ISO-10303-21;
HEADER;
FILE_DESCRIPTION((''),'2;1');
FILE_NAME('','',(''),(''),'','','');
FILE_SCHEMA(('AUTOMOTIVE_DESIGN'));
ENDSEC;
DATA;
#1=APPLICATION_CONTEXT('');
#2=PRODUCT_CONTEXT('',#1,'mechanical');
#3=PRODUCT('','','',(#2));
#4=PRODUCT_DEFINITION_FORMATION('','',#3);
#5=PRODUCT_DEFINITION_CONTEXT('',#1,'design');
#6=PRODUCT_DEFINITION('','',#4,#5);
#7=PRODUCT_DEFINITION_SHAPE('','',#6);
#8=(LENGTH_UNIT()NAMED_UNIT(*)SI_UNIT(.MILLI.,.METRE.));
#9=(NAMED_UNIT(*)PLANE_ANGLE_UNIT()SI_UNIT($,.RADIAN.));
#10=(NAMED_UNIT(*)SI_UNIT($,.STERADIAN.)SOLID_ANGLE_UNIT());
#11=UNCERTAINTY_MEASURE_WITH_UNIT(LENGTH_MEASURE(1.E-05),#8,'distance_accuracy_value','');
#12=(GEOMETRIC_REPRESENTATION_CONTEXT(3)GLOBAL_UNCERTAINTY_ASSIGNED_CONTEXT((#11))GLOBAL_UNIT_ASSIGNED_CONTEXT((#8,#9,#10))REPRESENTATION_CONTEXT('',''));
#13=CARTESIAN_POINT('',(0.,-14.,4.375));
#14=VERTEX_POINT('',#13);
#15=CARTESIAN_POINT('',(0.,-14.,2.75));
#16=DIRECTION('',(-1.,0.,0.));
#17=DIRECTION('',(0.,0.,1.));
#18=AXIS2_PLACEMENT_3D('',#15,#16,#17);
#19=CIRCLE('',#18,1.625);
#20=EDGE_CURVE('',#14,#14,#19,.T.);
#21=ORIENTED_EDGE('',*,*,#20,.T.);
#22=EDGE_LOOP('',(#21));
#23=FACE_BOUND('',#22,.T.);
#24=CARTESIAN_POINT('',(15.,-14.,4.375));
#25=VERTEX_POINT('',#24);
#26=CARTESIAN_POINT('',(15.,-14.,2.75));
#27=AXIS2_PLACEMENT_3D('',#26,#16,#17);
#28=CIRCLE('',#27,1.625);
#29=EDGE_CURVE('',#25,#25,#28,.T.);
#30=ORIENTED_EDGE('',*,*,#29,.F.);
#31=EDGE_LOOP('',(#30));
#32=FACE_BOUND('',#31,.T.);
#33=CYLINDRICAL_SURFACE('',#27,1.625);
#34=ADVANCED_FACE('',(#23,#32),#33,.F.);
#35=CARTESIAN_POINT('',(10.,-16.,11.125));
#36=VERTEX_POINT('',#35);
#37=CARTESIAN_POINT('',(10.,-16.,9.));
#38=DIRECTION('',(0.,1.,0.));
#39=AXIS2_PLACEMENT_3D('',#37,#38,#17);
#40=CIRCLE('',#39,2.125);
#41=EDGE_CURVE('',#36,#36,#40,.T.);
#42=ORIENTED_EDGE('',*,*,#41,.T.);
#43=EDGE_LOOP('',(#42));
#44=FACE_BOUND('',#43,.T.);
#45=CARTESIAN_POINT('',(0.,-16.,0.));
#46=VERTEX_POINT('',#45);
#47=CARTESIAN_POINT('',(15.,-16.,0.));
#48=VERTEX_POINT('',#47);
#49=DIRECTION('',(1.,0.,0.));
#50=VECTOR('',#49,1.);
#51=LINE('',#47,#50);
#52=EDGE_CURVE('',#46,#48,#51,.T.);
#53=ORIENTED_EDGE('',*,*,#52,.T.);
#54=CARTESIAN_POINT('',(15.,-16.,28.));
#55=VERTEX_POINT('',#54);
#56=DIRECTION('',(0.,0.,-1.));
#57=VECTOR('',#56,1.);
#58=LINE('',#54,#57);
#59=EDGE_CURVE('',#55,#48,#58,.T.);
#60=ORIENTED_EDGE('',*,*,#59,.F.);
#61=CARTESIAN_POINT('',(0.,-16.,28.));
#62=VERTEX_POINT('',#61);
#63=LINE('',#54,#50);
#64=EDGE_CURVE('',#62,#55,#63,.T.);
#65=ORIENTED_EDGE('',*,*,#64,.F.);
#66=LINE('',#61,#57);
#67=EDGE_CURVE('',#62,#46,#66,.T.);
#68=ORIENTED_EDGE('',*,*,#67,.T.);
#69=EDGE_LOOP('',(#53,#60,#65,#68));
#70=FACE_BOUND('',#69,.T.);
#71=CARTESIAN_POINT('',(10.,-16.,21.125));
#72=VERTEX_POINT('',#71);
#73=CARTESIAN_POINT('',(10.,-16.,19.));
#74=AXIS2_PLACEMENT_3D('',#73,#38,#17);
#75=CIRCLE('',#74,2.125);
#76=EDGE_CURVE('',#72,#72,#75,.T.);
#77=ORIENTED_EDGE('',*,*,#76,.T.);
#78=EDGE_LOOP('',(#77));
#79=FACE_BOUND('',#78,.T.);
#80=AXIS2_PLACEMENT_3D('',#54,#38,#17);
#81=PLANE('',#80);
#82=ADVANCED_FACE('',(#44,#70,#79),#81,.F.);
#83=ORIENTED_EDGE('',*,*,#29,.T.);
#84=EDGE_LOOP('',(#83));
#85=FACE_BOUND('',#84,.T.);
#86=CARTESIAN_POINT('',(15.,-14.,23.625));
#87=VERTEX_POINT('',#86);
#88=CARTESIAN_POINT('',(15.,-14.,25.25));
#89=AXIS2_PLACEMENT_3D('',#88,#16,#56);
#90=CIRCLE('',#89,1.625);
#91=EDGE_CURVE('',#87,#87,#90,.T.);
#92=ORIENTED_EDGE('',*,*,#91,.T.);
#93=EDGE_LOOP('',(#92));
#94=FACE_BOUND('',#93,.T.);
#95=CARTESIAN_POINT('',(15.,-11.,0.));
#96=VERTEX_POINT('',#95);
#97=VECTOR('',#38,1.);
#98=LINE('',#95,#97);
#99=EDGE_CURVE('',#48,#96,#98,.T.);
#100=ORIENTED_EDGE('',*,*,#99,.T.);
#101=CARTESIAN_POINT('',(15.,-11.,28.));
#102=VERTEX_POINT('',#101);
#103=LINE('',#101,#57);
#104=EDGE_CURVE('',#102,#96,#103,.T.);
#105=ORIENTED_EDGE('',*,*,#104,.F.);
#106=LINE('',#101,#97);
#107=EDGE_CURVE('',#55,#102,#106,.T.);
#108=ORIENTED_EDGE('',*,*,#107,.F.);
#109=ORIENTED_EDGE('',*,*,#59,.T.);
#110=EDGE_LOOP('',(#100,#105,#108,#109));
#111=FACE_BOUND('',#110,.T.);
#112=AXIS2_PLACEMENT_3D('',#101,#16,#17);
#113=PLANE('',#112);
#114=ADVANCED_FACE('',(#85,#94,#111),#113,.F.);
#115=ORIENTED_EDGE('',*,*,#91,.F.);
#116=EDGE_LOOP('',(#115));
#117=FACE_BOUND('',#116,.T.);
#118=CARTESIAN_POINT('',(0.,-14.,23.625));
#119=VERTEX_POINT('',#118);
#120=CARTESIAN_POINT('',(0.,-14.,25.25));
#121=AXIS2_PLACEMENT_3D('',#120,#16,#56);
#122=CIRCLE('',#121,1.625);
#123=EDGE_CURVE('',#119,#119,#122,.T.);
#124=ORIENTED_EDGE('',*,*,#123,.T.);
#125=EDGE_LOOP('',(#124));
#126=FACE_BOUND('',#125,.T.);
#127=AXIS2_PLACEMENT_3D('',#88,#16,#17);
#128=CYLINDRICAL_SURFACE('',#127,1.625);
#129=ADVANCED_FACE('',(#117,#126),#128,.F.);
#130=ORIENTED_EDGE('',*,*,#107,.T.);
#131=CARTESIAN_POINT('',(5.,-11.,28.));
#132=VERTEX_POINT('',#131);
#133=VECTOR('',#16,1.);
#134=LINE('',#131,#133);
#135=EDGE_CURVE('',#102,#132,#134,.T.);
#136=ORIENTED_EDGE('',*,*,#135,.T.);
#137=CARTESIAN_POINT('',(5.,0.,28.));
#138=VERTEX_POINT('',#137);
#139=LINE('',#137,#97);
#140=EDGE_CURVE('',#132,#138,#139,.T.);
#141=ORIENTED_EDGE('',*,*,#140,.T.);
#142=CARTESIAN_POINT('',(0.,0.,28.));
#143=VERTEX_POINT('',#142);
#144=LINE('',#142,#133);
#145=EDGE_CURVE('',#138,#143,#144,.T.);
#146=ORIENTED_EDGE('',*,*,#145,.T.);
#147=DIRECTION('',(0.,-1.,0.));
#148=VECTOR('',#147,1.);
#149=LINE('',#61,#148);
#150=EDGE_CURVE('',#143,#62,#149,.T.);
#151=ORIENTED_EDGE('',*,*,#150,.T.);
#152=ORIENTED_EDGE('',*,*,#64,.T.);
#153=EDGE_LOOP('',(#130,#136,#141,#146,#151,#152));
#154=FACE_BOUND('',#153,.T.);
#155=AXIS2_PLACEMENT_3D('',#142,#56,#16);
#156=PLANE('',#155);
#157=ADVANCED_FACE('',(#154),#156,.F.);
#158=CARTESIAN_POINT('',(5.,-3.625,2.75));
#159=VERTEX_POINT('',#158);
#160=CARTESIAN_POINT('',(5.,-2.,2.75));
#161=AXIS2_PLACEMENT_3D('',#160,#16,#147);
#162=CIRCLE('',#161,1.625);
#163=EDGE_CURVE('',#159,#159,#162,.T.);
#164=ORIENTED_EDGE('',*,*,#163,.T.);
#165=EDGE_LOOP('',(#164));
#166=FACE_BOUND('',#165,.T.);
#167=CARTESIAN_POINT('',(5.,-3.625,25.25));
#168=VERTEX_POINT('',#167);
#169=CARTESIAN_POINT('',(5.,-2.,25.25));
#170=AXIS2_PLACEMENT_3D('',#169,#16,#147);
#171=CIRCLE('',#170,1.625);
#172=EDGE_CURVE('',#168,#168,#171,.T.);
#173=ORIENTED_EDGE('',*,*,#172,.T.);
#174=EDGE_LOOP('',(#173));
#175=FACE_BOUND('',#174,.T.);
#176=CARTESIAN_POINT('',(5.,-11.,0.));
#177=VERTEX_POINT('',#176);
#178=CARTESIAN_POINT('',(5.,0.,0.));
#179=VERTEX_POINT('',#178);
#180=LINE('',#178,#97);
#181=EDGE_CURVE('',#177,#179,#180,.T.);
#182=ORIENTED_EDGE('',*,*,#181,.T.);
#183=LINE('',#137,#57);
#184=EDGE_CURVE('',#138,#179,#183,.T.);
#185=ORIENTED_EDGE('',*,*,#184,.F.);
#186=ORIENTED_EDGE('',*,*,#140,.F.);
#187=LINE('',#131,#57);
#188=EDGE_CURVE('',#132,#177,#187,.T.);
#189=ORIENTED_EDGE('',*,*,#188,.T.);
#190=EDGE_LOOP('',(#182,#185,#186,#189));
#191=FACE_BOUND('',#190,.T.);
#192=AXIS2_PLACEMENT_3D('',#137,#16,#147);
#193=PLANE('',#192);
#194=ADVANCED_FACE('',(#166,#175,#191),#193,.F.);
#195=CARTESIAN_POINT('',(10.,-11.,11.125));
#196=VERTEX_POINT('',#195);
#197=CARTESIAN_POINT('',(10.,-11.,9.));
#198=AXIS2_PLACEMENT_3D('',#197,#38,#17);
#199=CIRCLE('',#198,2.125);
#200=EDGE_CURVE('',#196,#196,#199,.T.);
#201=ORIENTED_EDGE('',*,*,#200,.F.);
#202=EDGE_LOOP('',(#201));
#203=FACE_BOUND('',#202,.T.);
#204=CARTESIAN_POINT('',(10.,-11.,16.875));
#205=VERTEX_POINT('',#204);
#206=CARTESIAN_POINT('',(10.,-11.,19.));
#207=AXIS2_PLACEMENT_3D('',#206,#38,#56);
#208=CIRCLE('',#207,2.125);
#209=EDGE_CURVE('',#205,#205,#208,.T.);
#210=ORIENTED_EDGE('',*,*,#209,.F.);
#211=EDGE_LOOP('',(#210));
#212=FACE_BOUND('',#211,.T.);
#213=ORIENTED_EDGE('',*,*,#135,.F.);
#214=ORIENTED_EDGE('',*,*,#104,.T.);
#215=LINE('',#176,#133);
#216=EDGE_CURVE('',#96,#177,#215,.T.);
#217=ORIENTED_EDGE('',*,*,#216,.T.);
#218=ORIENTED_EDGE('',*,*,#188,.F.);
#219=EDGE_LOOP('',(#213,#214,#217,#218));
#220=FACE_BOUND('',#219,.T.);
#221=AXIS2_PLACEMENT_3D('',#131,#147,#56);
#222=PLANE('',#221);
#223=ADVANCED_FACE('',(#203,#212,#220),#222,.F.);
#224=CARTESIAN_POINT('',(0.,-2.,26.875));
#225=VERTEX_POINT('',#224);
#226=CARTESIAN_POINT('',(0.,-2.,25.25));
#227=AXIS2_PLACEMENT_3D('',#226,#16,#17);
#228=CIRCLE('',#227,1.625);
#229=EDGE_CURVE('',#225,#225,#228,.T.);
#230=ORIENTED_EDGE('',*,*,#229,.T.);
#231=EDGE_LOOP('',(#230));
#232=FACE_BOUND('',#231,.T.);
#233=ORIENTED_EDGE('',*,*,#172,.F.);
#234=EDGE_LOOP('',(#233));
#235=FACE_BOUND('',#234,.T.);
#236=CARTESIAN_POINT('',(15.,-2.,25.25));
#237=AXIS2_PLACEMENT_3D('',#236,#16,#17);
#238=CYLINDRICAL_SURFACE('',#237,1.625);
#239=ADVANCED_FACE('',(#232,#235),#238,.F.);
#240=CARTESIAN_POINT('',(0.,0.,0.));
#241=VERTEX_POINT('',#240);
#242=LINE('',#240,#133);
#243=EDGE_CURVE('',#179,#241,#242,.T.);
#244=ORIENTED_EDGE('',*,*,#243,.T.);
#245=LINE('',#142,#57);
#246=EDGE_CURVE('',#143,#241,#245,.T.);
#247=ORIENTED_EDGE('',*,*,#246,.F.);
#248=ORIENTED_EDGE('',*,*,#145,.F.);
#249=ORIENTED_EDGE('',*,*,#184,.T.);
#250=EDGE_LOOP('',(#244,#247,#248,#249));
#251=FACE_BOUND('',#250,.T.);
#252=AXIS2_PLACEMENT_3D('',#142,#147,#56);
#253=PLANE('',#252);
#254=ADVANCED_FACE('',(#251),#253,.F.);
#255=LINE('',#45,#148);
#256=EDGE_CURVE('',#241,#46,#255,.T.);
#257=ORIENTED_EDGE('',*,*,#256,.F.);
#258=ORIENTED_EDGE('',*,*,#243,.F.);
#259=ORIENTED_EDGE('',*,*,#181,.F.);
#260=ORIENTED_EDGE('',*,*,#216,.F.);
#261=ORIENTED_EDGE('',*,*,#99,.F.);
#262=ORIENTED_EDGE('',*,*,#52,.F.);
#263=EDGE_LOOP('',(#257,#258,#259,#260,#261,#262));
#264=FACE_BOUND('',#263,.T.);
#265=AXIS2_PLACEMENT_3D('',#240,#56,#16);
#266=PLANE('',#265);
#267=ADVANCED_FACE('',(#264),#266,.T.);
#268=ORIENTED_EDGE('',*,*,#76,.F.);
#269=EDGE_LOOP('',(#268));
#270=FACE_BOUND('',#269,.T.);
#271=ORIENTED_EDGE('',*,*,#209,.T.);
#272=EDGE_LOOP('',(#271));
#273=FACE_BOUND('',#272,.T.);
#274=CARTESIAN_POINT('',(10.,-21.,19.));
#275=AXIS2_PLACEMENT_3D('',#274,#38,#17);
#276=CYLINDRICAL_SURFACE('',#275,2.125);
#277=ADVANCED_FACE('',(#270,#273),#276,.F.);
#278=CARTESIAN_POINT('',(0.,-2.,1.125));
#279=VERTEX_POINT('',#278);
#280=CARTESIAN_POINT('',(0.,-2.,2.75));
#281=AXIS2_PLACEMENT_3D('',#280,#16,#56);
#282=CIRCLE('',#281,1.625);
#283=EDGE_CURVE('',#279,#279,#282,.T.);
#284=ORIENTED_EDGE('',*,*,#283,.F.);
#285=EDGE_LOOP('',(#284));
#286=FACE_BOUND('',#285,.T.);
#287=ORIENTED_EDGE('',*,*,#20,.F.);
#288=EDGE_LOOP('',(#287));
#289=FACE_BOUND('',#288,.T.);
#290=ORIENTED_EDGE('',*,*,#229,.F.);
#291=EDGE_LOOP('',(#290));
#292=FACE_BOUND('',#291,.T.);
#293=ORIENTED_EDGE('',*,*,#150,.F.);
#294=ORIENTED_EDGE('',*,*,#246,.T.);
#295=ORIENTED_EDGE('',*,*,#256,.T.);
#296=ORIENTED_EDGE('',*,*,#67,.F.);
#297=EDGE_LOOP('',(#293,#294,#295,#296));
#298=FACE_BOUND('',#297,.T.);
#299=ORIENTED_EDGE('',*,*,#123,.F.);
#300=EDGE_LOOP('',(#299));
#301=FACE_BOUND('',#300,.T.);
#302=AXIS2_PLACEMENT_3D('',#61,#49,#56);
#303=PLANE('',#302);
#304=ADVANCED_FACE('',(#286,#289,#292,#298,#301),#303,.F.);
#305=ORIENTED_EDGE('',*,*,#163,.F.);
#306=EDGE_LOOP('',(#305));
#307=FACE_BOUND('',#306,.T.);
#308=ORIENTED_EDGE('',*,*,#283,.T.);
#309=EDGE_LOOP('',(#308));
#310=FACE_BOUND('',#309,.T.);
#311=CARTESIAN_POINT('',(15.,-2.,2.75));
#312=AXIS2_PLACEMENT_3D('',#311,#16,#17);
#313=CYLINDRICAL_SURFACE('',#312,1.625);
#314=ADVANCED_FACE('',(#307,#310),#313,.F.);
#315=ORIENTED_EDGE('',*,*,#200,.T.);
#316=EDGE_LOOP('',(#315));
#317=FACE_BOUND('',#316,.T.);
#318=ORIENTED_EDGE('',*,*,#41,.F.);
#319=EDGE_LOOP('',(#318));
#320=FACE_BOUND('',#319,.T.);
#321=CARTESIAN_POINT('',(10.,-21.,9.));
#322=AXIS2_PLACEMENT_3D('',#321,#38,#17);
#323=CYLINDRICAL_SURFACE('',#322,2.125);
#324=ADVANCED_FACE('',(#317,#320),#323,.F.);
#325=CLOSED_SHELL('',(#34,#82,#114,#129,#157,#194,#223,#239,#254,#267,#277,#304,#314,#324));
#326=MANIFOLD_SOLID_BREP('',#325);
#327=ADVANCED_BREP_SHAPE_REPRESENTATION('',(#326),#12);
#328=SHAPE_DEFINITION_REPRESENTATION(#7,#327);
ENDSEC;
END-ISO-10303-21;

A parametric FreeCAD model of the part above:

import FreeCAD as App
import Part
import Sketcher

doc = App.newDocument("Part")
params = doc.addObject("Spreadsheet::Sheet", "Params")
for row, (alias, value) in enumerate([
    ("sketch1_width", "5 mm"),
    ("sketch1_width2", "15 mm"),
    ("sketch1_height", "16 mm"),
    ("pad1_length", "28 mm"),
    ("sketch2_diameter", "3.25 mm"),
    ("sketch3_diameter", "4.25 mm"),
    ("pocket2_length", "10 mm"),
], start=1):
    params.set(f"A{row}", alias)
    params.set(f"B{row}", "=" + value)
    params.setAlias(f"B{row}", alias)

body = doc.addObject("PartDesign::Body", "Body")

# Sketch on XY plane
sketch1 = body.newObject("Sketcher::SketchObject", "Sketch")
sketch1.AttachmentSupport = (doc.getObject("XY_Plane"), [""])
sketch1.MapMode = "FlatFace"
sketch1.addGeometry(Part.LineSegment(App.Vector(5, 0, 0), App.Vector(0, 0, 0)), False)
sketch1.addGeometry(Part.LineSegment(App.Vector(0, 0, 0), App.Vector(0, -16, 0)), False)
sketch1.addGeometry(Part.LineSegment(App.Vector(0, -16, 0), App.Vector(15, -16, 0)), False)
sketch1.addGeometry(Part.LineSegment(App.Vector(15, -16, 0), App.Vector(15, -11, 0)), False)
sketch1.addGeometry(Part.LineSegment(App.Vector(15, -11, 0), App.Vector(5, -11, 0)), False)
sketch1.addGeometry(Part.LineSegment(App.Vector(5, -11, 0), App.Vector(5, 0, 0)), False)
sketch1.addConstraint(Sketcher.Constraint("Coincident", 0, 2, 1, 1))
sketch1.addConstraint(Sketcher.Constraint("Coincident", 1, 2, 2, 1))
sketch1.addConstraint(Sketcher.Constraint("Coincident", 2, 2, 3, 1))
sketch1.addConstraint(Sketcher.Constraint("Coincident", 3, 2, 4, 1))
sketch1.addConstraint(Sketcher.Constraint("Coincident", 4, 2, 5, 1))
sketch1.addConstraint(Sketcher.Constraint("Coincident", 5, 2, 0, 1))
sketch1.addConstraint(Sketcher.Constraint("Horizontal", 0))
sketch1.addConstraint(Sketcher.Constraint("Vertical", 1))
sketch1.addConstraint(Sketcher.Constraint("Horizontal", 2))
sketch1.addConstraint(Sketcher.Constraint("Vertical", 3))
sketch1.addConstraint(Sketcher.Constraint("Horizontal", 4))
sketch1.addConstraint(Sketcher.Constraint("Vertical", 5))
sketch1.addConstraint(Sketcher.Constraint("Coincident", 0, 2, -1, 1))
sketch1.addConstraint(Sketcher.Constraint("Equal", 0, 3))
sketch1.addConstraint(Sketcher.Constraint("DistanceX", 0, 2, 0, 1, 5.0))
sketch1.addConstraint(Sketcher.Constraint("DistanceX", 2, 1, 2, 2, 15.0))
sketch1.addConstraint(Sketcher.Constraint("DistanceY", 1, 2, 1, 1, 16.0))
sketch1.setExpression("Constraints[14]", "Params.sketch1_width")
sketch1.setExpression("Constraints[15]", "Params.sketch1_width2")
sketch1.setExpression("Constraints[16]", "Params.sketch1_height")
pad1 = body.newObject("PartDesign::Pad", "Pad")
pad1.Profile = sketch1
pad1.setExpression("Length", "Params.pad1_length")

# Sketch on YZ plane
sketch2 = body.newObject("Sketcher::SketchObject", "Sketch001")
sketch2.AttachmentSupport = (doc.getObject("YZ_Plane"), [""])
sketch2.MapMode = "FlatFace"
sketch2.addGeometry(Part.Circle(App.Vector(-2, 25.25, 0), App.Vector(0, 0, 1), 1.625), False)
sketch2.addGeometry(Part.Circle(App.Vector(-14, 2.75, 0), App.Vector(0, 0, 1), 1.625), False)
sketch2.addGeometry(Part.Circle(App.Vector(-14, 25.25, 0), App.Vector(0, 0, 1), 1.625), False)
sketch2.addGeometry(Part.Circle(App.Vector(-2, 2.75, 0), App.Vector(0, 0, 1), 1.625), False)
sketch2.addConstraint(Sketcher.Constraint("Equal", 0, 1))
sketch2.addConstraint(Sketcher.Constraint("Equal", 1, 2))
sketch2.addConstraint(Sketcher.Constraint("Equal", 2, 3))
sketch2.addConstraint(Sketcher.Constraint("Horizontal", 0, 3, 2, 3))
sketch2.addConstraint(Sketcher.Constraint("Horizontal", 1, 3, 3, 3))
sketch2.addConstraint(Sketcher.Constraint("Vertical", 1, 3, 2, 3))
sketch2.addConstraint(Sketcher.Constraint("Vertical", 0, 3, 3, 3))
sketch2.addConstraint(Sketcher.Constraint("Diameter", 0, 3.25))
sketch2.addConstraint(Sketcher.Constraint("DistanceX", 0, 3, -1, 1, 2.0))
sketch2.addConstraint(Sketcher.Constraint("DistanceX", 1, 3, -1, 1, 14.0))
sketch2.addConstraint(Sketcher.Constraint("DistanceY", 1, 3, 0, 3, 22.5))
sketch2.addConstraint(Sketcher.Constraint("DistanceY", -1, 1, 0, 3, 25.25))
sketch2.setExpression("Constraints[7]", "Params.sketch2_diameter")
pocket1 = body.newObject("PartDesign::Pocket", "Pocket")
pocket1.Profile = sketch2
pocket1.Type = "ThroughAll"
pocket1.Reversed = True

# Sketch on XZ plane
sketch3 = body.newObject("Sketcher::SketchObject", "Sketch002")
sketch3.AttachmentSupport = (doc.getObject("XZ_Plane"), [""])
sketch3.MapMode = "FlatFace"
sketch3.AttachmentOffset = App.Placement(App.Vector(0, 0, 11), App.Rotation())
sketch3.addGeometry(Part.Circle(App.Vector(10, 9, 0), App.Vector(0, 0, 1), 2.125), False)
sketch3.addGeometry(Part.Circle(App.Vector(10, 19, 0), App.Vector(0, 0, 1), 2.125), False)
sketch3.addConstraint(Sketcher.Constraint("Equal", 0, 1))
sketch3.addConstraint(Sketcher.Constraint("Vertical", 0, 3, 1, 3))
sketch3.addConstraint(Sketcher.Constraint("Diameter", 0, 4.25))
sketch3.addConstraint(Sketcher.Constraint("DistanceX", -1, 1, 0, 3, 10.0))
sketch3.addConstraint(Sketcher.Constraint("DistanceY", -1, 1, 0, 3, 9.0))
sketch3.addConstraint(Sketcher.Constraint("DistanceY", -1, 1, 1, 3, 19.0))
sketch3.setExpression("Constraints[2]", "Params.sketch3_diameter")
pocket2 = body.newObject("PartDesign::Pocket", "Pocket001")
pocket2.Profile = sketch3
pocket2.setExpression("Length", "Params.pocket2_length")
pocket2.Reversed = True

doc.recompute()
